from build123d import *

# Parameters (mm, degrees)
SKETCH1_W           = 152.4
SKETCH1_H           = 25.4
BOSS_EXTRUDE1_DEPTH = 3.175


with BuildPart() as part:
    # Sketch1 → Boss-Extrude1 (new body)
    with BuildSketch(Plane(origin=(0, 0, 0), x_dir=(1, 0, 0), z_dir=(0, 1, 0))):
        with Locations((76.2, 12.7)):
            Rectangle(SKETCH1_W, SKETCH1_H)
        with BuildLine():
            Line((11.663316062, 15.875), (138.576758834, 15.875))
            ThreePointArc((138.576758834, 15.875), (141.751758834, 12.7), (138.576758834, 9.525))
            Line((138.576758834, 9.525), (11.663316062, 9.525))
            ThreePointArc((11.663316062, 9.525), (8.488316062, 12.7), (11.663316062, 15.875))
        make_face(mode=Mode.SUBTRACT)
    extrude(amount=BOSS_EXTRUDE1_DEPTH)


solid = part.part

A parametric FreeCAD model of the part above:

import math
import FreeCAD as App
import Part
import Sketcher
Q = App.Units.Quantity

doc = App.newDocument("Part")
body = doc.addObject("PartDesign::Body", "Body")

sketch1 = doc.addObject("Sketcher::SketchObject", "Sketch")
body.addObject(sketch1)
sketch1.AttachmentSupport = (doc.XZ_Plane, [""])
sketch1.MapMode = "FlatFace"
sketch1.addGeometry([
    Part.LineSegment(App.Vector(0, -25.4, 0), App.Vector(0, 0, 0)),
    Part.LineSegment(App.Vector(0, 0, 0), App.Vector(152.4, 0, 0)),
    Part.LineSegment(App.Vector(152.4, 0, 0), App.Vector(152.4, -25.4, 0)),
    Part.LineSegment(App.Vector(152.4, -25.4, 0), App.Vector(0, -25.4, 0)),
    Part.ArcOfCircle(Part.Circle(App.Vector(11.7, -12.7, 0), App.Vector(0, 0, 1), 3.2), math.radians(90), math.radians(270)),
    Part.LineSegment(App.Vector(11.7, -15.9, 0), App.Vector(138.6, -15.9, 0)),
    Part.ArcOfCircle(Part.Circle(App.Vector(138.6, -12.7, 0), App.Vector(0, 0, 1), 3.2), math.radians(-90), math.radians(90)),
    Part.LineSegment(App.Vector(138.6, -9.5, 0), App.Vector(11.7, -9.5, 0)),
], False)
sketch1.addConstraint([
    Sketcher.Constraint("Coincident", 0, 2, 1, 1),
    Sketcher.Constraint("Coincident", 1, 2, 2, 1),
    Sketcher.Constraint("Coincident", 2, 2, 3, 1),
    Sketcher.Constraint("Coincident", 3, 2, 0, 1),
    Sketcher.Constraint("Tangent", 4, 2, 5, 1),
    Sketcher.Constraint("Tangent", 5, 2, 6, 1),
    Sketcher.Constraint("Tangent", 6, 2, 7, 1),
    Sketcher.Constraint("Tangent", 7, 2, 4, 1),
    Sketcher.Constraint("Vertical", 0),
    Sketcher.Constraint("Horizontal", 1),
    Sketcher.Constraint("Vertical", 2),
    Sketcher.Constraint("Horizontal", 3),
    Sketcher.Constraint("Horizontal", 5),
    Sketcher.Constraint("Horizontal", 7),
    Sketcher.Constraint("Coincident", 0, 2, -1, 1),
    Sketcher.Constraint("DistanceX", 1, 1, 1, 2, Q("6 in")),
    Sketcher.Constraint("DistanceY", 0, 1, 0, 2, Q("1 in")),
    Sketcher.Constraint("Radius", 4, Q("0.125 in")),
    Sketcher.Constraint("DistanceY", 4, 3, -1, 1, Q("0.5 in")),
    Sketcher.Constraint("DistanceX", 5, 1, 5, 2, 126.913443),
    Sketcher.Constraint("DistanceX", -1, 1, 6, 3, 138.576759),
])
pad1 = doc.addObject("PartDesign::Pad", "Pad")
body.addObject(pad1)
pad1.Profile = sketch1
pad1.Length = Q("0.125 in")
pad1.Reversed = True

doc.recompute()
